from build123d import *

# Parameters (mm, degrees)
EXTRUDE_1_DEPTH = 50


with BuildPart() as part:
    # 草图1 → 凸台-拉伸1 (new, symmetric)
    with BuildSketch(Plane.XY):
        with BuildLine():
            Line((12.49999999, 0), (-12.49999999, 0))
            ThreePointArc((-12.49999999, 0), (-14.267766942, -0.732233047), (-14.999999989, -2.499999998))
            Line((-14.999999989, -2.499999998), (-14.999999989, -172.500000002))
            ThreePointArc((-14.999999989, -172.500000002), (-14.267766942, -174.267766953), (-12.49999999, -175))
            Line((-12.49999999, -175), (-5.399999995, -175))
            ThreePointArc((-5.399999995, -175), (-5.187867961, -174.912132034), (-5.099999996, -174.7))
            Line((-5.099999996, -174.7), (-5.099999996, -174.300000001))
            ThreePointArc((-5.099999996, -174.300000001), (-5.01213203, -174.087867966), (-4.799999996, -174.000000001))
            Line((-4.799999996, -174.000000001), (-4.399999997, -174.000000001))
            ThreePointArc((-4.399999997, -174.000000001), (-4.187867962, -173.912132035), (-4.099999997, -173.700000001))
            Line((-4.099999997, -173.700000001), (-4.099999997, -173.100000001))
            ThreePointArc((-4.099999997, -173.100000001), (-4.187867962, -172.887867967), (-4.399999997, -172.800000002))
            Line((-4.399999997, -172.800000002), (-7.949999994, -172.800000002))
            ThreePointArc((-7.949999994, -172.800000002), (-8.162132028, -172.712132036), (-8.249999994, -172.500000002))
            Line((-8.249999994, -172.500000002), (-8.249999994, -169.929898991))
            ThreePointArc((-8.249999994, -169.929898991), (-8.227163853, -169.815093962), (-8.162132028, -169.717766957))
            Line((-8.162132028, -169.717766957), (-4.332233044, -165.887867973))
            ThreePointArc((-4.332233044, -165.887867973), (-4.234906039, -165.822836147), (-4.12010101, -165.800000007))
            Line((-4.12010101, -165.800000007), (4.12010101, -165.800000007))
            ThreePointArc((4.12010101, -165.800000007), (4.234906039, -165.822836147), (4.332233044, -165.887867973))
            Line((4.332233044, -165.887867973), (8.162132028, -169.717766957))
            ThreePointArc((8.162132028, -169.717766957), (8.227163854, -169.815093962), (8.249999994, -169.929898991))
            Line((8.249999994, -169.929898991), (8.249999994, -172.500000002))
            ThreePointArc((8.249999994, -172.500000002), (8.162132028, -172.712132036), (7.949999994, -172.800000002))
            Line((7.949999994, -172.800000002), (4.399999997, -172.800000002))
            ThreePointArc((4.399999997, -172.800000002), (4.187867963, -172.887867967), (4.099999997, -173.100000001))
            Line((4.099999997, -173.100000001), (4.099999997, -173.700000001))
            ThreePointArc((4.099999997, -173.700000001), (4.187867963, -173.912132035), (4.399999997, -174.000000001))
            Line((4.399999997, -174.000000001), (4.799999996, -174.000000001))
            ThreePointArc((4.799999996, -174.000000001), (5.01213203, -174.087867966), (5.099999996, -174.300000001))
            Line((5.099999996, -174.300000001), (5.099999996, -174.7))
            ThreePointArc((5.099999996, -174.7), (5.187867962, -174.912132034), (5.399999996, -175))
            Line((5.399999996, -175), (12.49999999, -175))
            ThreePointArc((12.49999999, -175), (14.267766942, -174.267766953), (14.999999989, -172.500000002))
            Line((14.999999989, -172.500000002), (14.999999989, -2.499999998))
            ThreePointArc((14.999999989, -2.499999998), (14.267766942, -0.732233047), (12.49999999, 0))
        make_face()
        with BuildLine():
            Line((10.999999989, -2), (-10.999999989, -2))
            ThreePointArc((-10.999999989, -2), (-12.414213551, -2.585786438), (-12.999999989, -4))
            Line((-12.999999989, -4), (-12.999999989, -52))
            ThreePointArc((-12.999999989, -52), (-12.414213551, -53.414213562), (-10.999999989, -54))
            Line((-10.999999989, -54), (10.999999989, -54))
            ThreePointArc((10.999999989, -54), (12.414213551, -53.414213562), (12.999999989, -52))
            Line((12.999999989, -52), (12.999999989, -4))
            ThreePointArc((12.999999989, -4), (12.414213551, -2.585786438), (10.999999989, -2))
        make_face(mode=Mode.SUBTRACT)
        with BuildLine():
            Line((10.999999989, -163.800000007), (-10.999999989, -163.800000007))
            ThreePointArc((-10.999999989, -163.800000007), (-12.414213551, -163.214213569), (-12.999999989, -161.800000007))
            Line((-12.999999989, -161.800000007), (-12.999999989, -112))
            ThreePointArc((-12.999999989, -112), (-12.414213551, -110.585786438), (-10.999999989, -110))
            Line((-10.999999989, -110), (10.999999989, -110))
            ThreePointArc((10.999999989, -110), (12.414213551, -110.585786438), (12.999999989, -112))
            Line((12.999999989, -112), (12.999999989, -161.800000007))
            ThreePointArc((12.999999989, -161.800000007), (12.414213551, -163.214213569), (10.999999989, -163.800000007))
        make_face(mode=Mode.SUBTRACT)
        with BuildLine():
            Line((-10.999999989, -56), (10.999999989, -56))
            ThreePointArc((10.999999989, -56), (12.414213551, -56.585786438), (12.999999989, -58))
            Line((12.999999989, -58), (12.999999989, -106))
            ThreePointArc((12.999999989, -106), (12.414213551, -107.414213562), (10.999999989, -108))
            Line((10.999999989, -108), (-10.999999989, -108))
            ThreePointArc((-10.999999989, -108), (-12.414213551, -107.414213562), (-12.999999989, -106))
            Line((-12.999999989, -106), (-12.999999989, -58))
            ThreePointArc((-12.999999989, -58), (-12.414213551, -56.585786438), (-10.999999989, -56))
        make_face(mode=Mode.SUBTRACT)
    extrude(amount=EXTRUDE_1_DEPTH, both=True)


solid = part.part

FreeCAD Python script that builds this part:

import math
import FreeCAD as App
import Part
import Sketcher
from FreeCAD import Vector
Q = App.Units.Quantity

doc = App.newDocument("Part")
body = doc.addObject("PartDesign::Body", "Body")

sketch1 = body.newObject("Sketcher::SketchObject", "Sketch")
sketch1.AttachmentSupport = (doc.getObject("XY_Plane"), [""])
sketch1.MapMode = "FlatFace"
sketch1.addGeometry([
    Part.LineSegment(Vector(12.5, 0, 0), Vector(-12.5, 0, 0)),
    Part.ArcOfCircle(Part.Circle(Vector(-12.5, -2.5, 0), Vector(0, 0, 1), 2.5), math.radians(90), math.radians(180)),
    Part.LineSegment(Vector(-15, -2.5, 0), Vector(-15, -172.5, 0)),
    Part.ArcOfCircle(Part.Circle(Vector(-12.5, -172.5, 0), Vector(0, 0, 1), 2.5), math.radians(-180), math.radians(-90)),
    Part.LineSegment(Vector(-12.5, -175, 0), Vector(-5.4, -175, 0)),
    Part.ArcOfCircle(Part.Circle(Vector(-5.4, -174.7, 0), Vector(0, 0, 1), 0.3), math.radians(-90), math.radians(0)),
    Part.LineSegment(Vector(-5.1, -174.7, 0), Vector(-5.1, -174.3, 0)),
    Part.ArcOfCircle(Part.Circle(Vector(-4.8, -174.3, 0), Vector(0, 0, 1), 0.3), math.radians(90), math.radians(180)),
    Part.LineSegment(Vector(-4.8, -174, 0), Vector(-4.4, -174, 0)),
    Part.ArcOfCircle(Part.Circle(Vector(-4.4, -173.7, 0), Vector(0, 0, 1), 0.3), math.radians(-90), math.radians(0)),
    Part.LineSegment(Vector(-4.1, -173.7, 0), Vector(-4.1, -173.1, 0)),
    Part.ArcOfCircle(Part.Circle(Vector(-4.4, -173.1, 0), Vector(0, 0, 1), 0.3), math.radians(0), math.radians(90)),
    Part.LineSegment(Vector(-4.4, -172.8, 0), Vector(-7.95, -172.8, 0)),
    Part.ArcOfCircle(Part.Circle(Vector(-7.95, -172.5, 0), Vector(0, 0, 1), 0.3), math.radians(-180), math.radians(-90)),
    Part.LineSegment(Vector(-8.25, -172.5, 0), Vector(-8.25, -169.93, 0)),
    Part.ArcOfCircle(Part.Circle(Vector(-7.95, -169.93, 0), Vector(0, 0, 1), 0.3), math.radians(135), math.radians(180)),
    Part.LineSegment(Vector(-8.16, -169.72, 0), Vector(-4.33, -165.89, 0)),
    Part.ArcOfCircle(Part.Circle(Vector(-4.12, -166.1, 0), Vector(0, 0, 1), 0.3), math.radians(90), math.radians(135)),
    Part.LineSegment(Vector(-4.12, -165.8, 0), Vector(4.12, -165.8, 0)),
    Part.ArcOfCircle(Part.Circle(Vector(4.12, -166.1, 0), Vector(0, 0, 1), 0.3), math.radians(45), math.radians(90)),
    Part.LineSegment(Vector(4.33, -165.89, 0), Vector(8.16, -169.72, 0)),
    Part.ArcOfCircle(Part.Circle(Vector(7.95, -169.93, 0), Vector(0, 0, 1), 0.3), math.radians(0), math.radians(45)),
    Part.LineSegment(Vector(8.25, -169.93, 0), Vector(8.25, -172.5, 0)),
    Part.ArcOfCircle(Part.Circle(Vector(7.95, -172.5, 0), Vector(0, 0, 1), 0.3), math.radians(-90), math.radians(0)),
    Part.LineSegment(Vector(7.95, -172.8, 0), Vector(4.4, -172.8, 0)),
    Part.ArcOfCircle(Part.Circle(Vector(4.4, -173.1, 0), Vector(0, 0, 1), 0.3), math.radians(90), math.radians(180)),
    Part.LineSegment(Vector(4.1, -173.1, 0), Vector(4.1, -173.7, 0)),
    Part.ArcOfCircle(Part.Circle(Vector(4.4, -173.7, 0), Vector(0, 0, 1), 0.3), math.radians(-180), math.radians(-90)),
    Part.LineSegment(Vector(4.4, -174, 0), Vector(4.8, -174, 0)),
    Part.ArcOfCircle(Part.Circle(Vector(4.8, -174.3, 0), Vector(0, 0, 1), 0.3), math.radians(0), math.radians(90)),
    Part.LineSegment(Vector(5.1, -174.3, 0), Vector(5.1, -174.7, 0)),
    Part.ArcOfCircle(Part.Circle(Vector(5.4, -174.7, 0), Vector(0, 0, 1), 0.3), math.radians(-180), math.radians(-90)),
    Part.LineSegment(Vector(5.4, -175, 0), Vector(12.5, -175, 0)),
    Part.ArcOfCircle(Part.Circle(Vector(12.5, -172.5, 0), Vector(0, 0, 1), 2.5), math.radians(-90), math.radians(0)),
    Part.LineSegment(Vector(15, -172.5, 0), Vector(15, -2.5, 0)),
    Part.ArcOfCircle(Part.Circle(Vector(12.5, -2.5, 0), Vector(0, 0, 1), 2.5), math.radians(0), math.radians(90)),
    Part.ArcOfCircle(Part.Circle(Vector(11, -161.8, 0), Vector(0, 0, 1), 2), math.radians(-90), math.radians(0)),
    Part.LineSegment(Vector(11, -163.8, 0), Vector(-11, -163.8, 0)),
    Part.ArcOfCircle(Part.Circle(Vector(-11, -161.8, 0), Vector(0, 0, 1), 2), math.radians(-180), math.radians(-90)),
    Part.LineSegment(Vector(-13, -161.8, 0), Vector(-13, -112, 0)),
    Part.ArcOfCircle(Part.Circle(Vector(-11, -112, 0), Vector(0, 0, 1), 2), math.radians(90), math.radians(180)),
    Part.LineSegment(Vector(-11, -110, 0), Vector(11, -110, 0)),
    Part.ArcOfCircle(Part.Circle(Vector(11, -112, 0), Vector(0, 0, 1), 2), math.radians(0), math.radians(90)),
    Part.LineSegment(Vector(13, -112, 0), Vector(13, -161.8, 0)),
    Part.ArcOfCircle(Part.Circle(Vector(-11, -58, 0), Vector(0, 0, 1), 2), math.radians(90), math.radians(180)),
    Part.LineSegment(Vector(-11, -56, 0), Vector(11, -56, 0)),
    Part.ArcOfCircle(Part.Circle(Vector(11, -58, 0), Vector(0, 0, 1), 2), math.radians(0), math.radians(90)),
    Part.LineSegment(Vector(13, -58, 0), Vector(13, -106, 0)),
    Part.ArcOfCircle(Part.Circle(Vector(11, -106, 0), Vector(0, 0, 1), 2), math.radians(-90), math.radians(0)),
    Part.LineSegment(Vector(11, -108, 0), Vector(-11, -108, 0)),
    Part.ArcOfCircle(Part.Circle(Vector(-11, -106, 0), Vector(0, 0, 1), 2), math.radians(-180), math.radians(-90)),
    Part.LineSegment(Vector(-13, -106, 0), Vector(-13, -58, 0)),
    Part.LineSegment(Vector(-11, -2, 0), Vector(11, -2, 0)),
    Part.ArcOfCircle(Part.Circle(Vector(11, -4, 0), Vector(0, 0, 1), 2), math.radians(0), math.radians(90)),
    Part.LineSegment(Vector(13, -4, 0), Vector(13, -52, 0)),
    Part.ArcOfCircle(Part.Circle(Vector(11, -52, 0), Vector(0, 0, 1), 2), math.radians(-90), math.radians(0)),
    Part.LineSegment(Vector(11, -54, 0), Vector(-11, -54, 0)),
    Part.ArcOfCircle(Part.Circle(Vector(-11, -52, 0), Vector(0, 0, 1), 2), math.radians(-180), math.radians(-90)),
    Part.LineSegment(Vector(-13, -52, 0), Vector(-13, -4, 0)),
    Part.ArcOfCircle(Part.Circle(Vector(-11, -4, 0), Vector(0, 0, 1), 2), math.radians(90), math.radians(180)),
], False)
sketch1.addConstraint([
    Sketcher.Constraint("Tangent", 0, 2, 1, 1),
    Sketcher.Constraint("Tangent", 1, 2, 2, 1),
    Sketcher.Constraint("Tangent", 2, 2, 3, 1),
    Sketcher.Constraint("Tangent", 3, 2, 4, 1),
    Sketcher.Constraint("Tangent", 4, 2, 5, 1),
    Sketcher.Constraint("Tangent", 5, 2, 6, 1),
    Sketcher.Constraint("Tangent", 6, 2, 7, 2),
    Sketcher.Constraint("Tangent", 7, 1, 8, 1),
    Sketcher.Constraint("Tangent", 8, 2, 9, 1),
    Sketcher.Constraint("Tangent", 9, 2, 10, 1),
    Sketcher.Constraint("Tangent", 10, 2, 11, 1),
    Sketcher.Constraint("Tangent", 11, 2, 12, 1),
    Sketcher.Constraint("Tangent", 12, 2, 13, 2),
    Sketcher.Constraint("Tangent", 13, 1, 14, 1),
    Sketcher.Constraint("Tangent", 14, 2, 15, 2),
    Sketcher.Constraint("Tangent", 15, 1, 16, 1),
    Sketcher.Constraint("Tangent", 16, 2, 17, 2),
    Sketcher.Constraint("Tangent", 17, 1, 18, 1),
    Sketcher.Constraint("Tangent", 18, 2, 19, 2),
    Sketcher.Constraint("Tangent", 19, 1, 20, 1),
    Sketcher.Constraint("Tangent", 20, 2, 21, 2),
    Sketcher.Constraint("Tangent", 21, 1, 22, 1),
    Sketcher.Constraint("Tangent", 22, 2, 23, 2),
    Sketcher.Constraint("Tangent", 23, 1, 24, 1),
    Sketcher.Constraint("Tangent", 24, 2, 25, 1),
    Sketcher.Constraint("Tangent", 25, 2, 26, 1),
    Sketcher.Constraint("Tangent", 26, 2, 27, 1),
    Sketcher.Constraint("Tangent", 27, 2, 28, 1),
    Sketcher.Constraint("Tangent", 28, 2, 29, 2),
    Sketcher.Constraint("Tangent", 29, 1, 30, 1),
    Sketcher.Constraint("Tangent", 30, 2, 31, 1),
    Sketcher.Constraint("Tangent", 31, 2, 32, 1),
    Sketcher.Constraint("Tangent", 32, 2, 33, 1),
    Sketcher.Constraint("Tangent", 33, 2, 34, 1),
    Sketcher.Constraint("Tangent", 34, 2, 35, 1),
    Sketcher.Constraint("Tangent", 35, 2, 0, 1),
    Sketcher.Constraint("Tangent", 36, 1, 37, 1),
    Sketcher.Constraint("Tangent", 37, 2, 38, 2),
    Sketcher.Constraint("Tangent", 38, 1, 39, 1),
    Sketcher.Constraint("Tangent", 39, 2, 40, 2),
    Sketcher.Constraint("Tangent", 40, 1, 41, 1),
    Sketcher.Constraint("Tangent", 41, 2, 42, 2),
    Sketcher.Constraint("Tangent", 42, 1, 43, 1),
    Sketcher.Constraint("Tangent", 43, 2, 36, 2),
    Sketcher.Constraint("Tangent", 44, 1, 45, 1),
    Sketcher.Constraint("Tangent", 45, 2, 46, 2),
    Sketcher.Constraint("Tangent", 46, 1, 47, 1),
    Sketcher.Constraint("Tangent", 47, 2, 48, 2),
    Sketcher.Constraint("Tangent", 48, 1, 49, 1),
    Sketcher.Constraint("Tangent", 49, 2, 50, 2),
    Sketcher.Constraint("Tangent", 50, 1, 51, 1),
    Sketcher.Constraint("Tangent", 51, 2, 44, 2),
    Sketcher.Constraint("Tangent", 52, 2, 53, 2),
    Sketcher.Constraint("Tangent", 53, 1, 54, 1),
    Sketcher.Constraint("Tangent", 54, 2, 55, 2),
    Sketcher.Constraint("Tangent", 55, 1, 56, 1),
    Sketcher.Constraint("Tangent", 56, 2, 57, 2),
    Sketcher.Constraint("Tangent", 57, 1, 58, 1),
    Sketcher.Constraint("Tangent", 58, 2, 59, 2),
    Sketcher.Constraint("Tangent", 59, 1, 52, 1),
    Sketcher.Constraint("Horizontal", 0),
    Sketcher.Constraint("Vertical", 2),
    Sketcher.Constraint("Horizontal", 4),
    Sketcher.Constraint("Vertical", 6),
    Sketcher.Constraint("Horizontal", 8),
    Sketcher.Constraint("Vertical", 10),
    Sketcher.Constraint("Horizontal", 12),
    Sketcher.Constraint("Vertical", 14),
    Sketcher.Constraint("Horizontal", 18),
    Sketcher.Constraint("Vertical", 22),
    Sketcher.Constraint("Horizontal", 24),
    Sketcher.Constraint("Vertical", 26),
    Sketcher.Constraint("Horizontal", 28),
    Sketcher.Constraint("Vertical", 30),
    Sketcher.Constraint("Horizontal", 32),
    Sketcher.Constraint("Vertical", 34),
    Sketcher.Constraint("Horizontal", 37),
    Sketcher.Constraint("Vertical", 39),
    Sketcher.Constraint("Horizontal", 41),
    Sketcher.Constraint("Vertical", 43),
    Sketcher.Constraint("Horizontal", 45),
    Sketcher.Constraint("Vertical", 47),
    Sketcher.Constraint("Horizontal", 49),
    Sketcher.Constraint("Vertical", 51),
    Sketcher.Constraint("Horizontal", 52),
    Sketcher.Constraint("Vertical", 54),
    Sketcher.Constraint("Horizontal", 56),
    Sketcher.Constraint("Vertical", 58),
    Sketcher.Constraint("Equal", 1, 3),
    Sketcher.Constraint("Equal", 5, 7),
    Sketcher.Constraint("Equal", 7, 9),
    Sketcher.Constraint("Equal", 9, 11),
    Sketcher.Constraint("Equal", 11, 13),
    Sketcher.Constraint("Equal", 13, 15),
    Sketcher.Constraint("Equal", 15, 17),
    Sketcher.Constraint("Equal", 17, 19),
    Sketcher.Constraint("Equal", 19, 21),
    Sketcher.Constraint("Equal", 21, 23),
    Sketcher.Constraint("Equal", 23, 25),
    Sketcher.Constraint("Equal", 25, 27),
    Sketcher.Constraint("Equal", 27, 29),
    Sketcher.Constraint("Equal", 29, 31),
    Sketcher.Constraint("Equal", 3, 33),
    Sketcher.Constraint("Equal", 33, 35),
    Sketcher.Constraint("Equal", 36, 38),
    Sketcher.Constraint("Equal", 38, 40),
    Sketcher.Constraint("Equal", 40, 42),
    Sketcher.Constraint("Equal", 42, 44),
    Sketcher.Constraint("Equal", 44, 46),
    Sketcher.Constraint("Equal", 46, 48),
    Sketcher.Constraint("Equal", 48, 50),
    Sketcher.Constraint("Equal", 50, 53),
    Sketcher.Constraint("Equal", 53, 55),
    Sketcher.Constraint("Equal", 55, 57),
    Sketcher.Constraint("Equal", 57, 59),
    Sketcher.Constraint("Symmetric", 0, 2, 35, 2, -1, 1),
    Sketcher.Constraint("Symmetric", 15, 3, 21, 3, -2),
    Sketcher.Constraint("Symmetric", 11, 3, 25, 3, -2),
    Sketcher.Constraint("Symmetric", 7, 3, 29, 3, -2),
    Sketcher.Constraint("Perpendicular", 16, 20),
    Sketcher.Constraint("Horizontal", 3, 3, 13, 3),
    Sketcher.Constraint("Horizontal", 5, 3, 31, 3),
    Sketcher.Constraint("Horizontal", 16, 2, 19, 1),
    Sketcher.Constraint("Vertical", 40, 3, 44, 3),
    Sketcher.Constraint("Vertical", 42, 3, 46, 3),
    Sketcher.Constraint("Vertical", 48, 3, 53, 3),
    Sketcher.Constraint("Vertical", 50, 3, 57, 3),
    Sketcher.Constraint("Equal", 28, 6),
    Sketcher.Constraint("Equal", 51, 54),
    Sketcher.Constraint("Radius", 36, Q("2 mm")),
    Sketcher.Constraint("Radius", 1, Q("2.5 mm")),
    Sketcher.Constraint("Radius", 5, Q("0.3 mm")),
    Sketcher.Constraint("DistanceX", 0, 2, 0, 1, Q("25 mm")),
    Sketcher.Constraint("DistanceX", 37, 2, 37, 1, Q("22 mm")),
    Sketcher.Constraint("DistanceY", 2, 2, 2, 1, Q("170 mm")),
    Sketcher.Constraint("DistanceY", 47, 2, 47, 1, Q("48 mm")),
    Sketcher.Constraint("DistanceX", 4, 1, 4, 2, Q("7.1 mm")),
    Sketcher.Constraint("DistanceX", 8, 1, 8, 2, Q("0.4 mm")),
    Sketcher.Constraint("DistanceY", 39, 1, 39, 2, Q("49.8 mm")),
    Sketcher.Constraint("DistanceX", -1, 1, 36, 3, Q("11 mm")),
    Sketcher.Constraint("DistanceY", 40, 3, -1, 1, Q("112 mm")),
    Sketcher.Constraint("DistanceY", 44, 3, -1, 1, Q("58 mm")),
    Sketcher.Constraint("DistanceY", 53, 3, -1, 1, Q("4 mm")),
    Sketcher.Constraint("DistanceX", 12, 2, 12, 1, Q("3.55 mm")),
    Sketcher.Constraint("DistanceY", 17, 3, -1, 1, Q("166.1 mm")),
    Sketcher.Constraint("DistanceY", 14, 1, 14, 2, Q("2.570101 mm")),
])
pad1 = body.newObject("PartDesign::Pad", "Pad")
pad1.Profile = sketch1
pad1.Length = 100
pad1.Midplane = True

doc.recompute()
